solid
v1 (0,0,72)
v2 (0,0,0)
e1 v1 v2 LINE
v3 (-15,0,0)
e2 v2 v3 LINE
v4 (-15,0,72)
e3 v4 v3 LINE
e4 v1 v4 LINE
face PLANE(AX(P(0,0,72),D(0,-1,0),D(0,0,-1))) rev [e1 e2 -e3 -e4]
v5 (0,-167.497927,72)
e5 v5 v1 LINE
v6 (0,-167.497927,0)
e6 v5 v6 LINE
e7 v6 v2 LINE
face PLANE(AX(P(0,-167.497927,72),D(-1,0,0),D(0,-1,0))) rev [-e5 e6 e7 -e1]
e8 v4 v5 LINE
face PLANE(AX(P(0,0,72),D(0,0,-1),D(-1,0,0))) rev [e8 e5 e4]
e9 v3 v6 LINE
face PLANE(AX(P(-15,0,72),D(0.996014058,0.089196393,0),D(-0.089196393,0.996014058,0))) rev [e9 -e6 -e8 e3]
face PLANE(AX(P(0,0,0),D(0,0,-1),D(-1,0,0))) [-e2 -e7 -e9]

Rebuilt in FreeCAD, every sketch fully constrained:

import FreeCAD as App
import Part
import Sketcher
from FreeCAD import Vector
Q = App.Units.Quantity

doc = App.newDocument("Part")
body = doc.addObject("PartDesign::Body", "Body")

# Sketch on XY plane
sketch1 = doc.addObject("Sketcher::SketchObject", "Sketch")
body.addObject(sketch1)
sketch1.AttachmentSupport = (doc.XY_Plane, [""])
sketch1.MapMode = "FlatFace"
sketch1.addGeometry(Part.LineSegment(Vector(-15, 0, 0), Vector(0, -167, 0)), False)
sketch1.addGeometry(Part.LineSegment(Vector(0, -167, 0), Vector(0, 0, 0)), False)
sketch1.addGeometry(Part.LineSegment(Vector(0, 0, 0), Vector(-15, 0, 0)), False)
sketch1.addConstraint(Sketcher.Constraint("Coincident", 0, 2, 1, 1))
sketch1.addConstraint(Sketcher.Constraint("Coincident", 1, 2, 2, 1))
sketch1.addConstraint(Sketcher.Constraint("Coincident", 2, 2, 0, 1))
sketch1.addConstraint(Sketcher.Constraint("Vertical", 1))
sketch1.addConstraint(Sketcher.Constraint("Horizontal", 2))
sketch1.addConstraint(Sketcher.Constraint("Coincident", 1, 2, -1, 1))
sketch1.addConstraint(Sketcher.Constraint("DistanceX", 2, 2, 2, 1, Q("15 mm")))
sketch1.addConstraint(Sketcher.Constraint("DistanceY", 1, 1, 1, 2, Q("167.497927 mm")))
pad1 = doc.addObject("PartDesign::Pad", "Pad")
body.addObject(pad1)
pad1.Profile = sketch1
pad1.Length = 72

doc.recompute()
